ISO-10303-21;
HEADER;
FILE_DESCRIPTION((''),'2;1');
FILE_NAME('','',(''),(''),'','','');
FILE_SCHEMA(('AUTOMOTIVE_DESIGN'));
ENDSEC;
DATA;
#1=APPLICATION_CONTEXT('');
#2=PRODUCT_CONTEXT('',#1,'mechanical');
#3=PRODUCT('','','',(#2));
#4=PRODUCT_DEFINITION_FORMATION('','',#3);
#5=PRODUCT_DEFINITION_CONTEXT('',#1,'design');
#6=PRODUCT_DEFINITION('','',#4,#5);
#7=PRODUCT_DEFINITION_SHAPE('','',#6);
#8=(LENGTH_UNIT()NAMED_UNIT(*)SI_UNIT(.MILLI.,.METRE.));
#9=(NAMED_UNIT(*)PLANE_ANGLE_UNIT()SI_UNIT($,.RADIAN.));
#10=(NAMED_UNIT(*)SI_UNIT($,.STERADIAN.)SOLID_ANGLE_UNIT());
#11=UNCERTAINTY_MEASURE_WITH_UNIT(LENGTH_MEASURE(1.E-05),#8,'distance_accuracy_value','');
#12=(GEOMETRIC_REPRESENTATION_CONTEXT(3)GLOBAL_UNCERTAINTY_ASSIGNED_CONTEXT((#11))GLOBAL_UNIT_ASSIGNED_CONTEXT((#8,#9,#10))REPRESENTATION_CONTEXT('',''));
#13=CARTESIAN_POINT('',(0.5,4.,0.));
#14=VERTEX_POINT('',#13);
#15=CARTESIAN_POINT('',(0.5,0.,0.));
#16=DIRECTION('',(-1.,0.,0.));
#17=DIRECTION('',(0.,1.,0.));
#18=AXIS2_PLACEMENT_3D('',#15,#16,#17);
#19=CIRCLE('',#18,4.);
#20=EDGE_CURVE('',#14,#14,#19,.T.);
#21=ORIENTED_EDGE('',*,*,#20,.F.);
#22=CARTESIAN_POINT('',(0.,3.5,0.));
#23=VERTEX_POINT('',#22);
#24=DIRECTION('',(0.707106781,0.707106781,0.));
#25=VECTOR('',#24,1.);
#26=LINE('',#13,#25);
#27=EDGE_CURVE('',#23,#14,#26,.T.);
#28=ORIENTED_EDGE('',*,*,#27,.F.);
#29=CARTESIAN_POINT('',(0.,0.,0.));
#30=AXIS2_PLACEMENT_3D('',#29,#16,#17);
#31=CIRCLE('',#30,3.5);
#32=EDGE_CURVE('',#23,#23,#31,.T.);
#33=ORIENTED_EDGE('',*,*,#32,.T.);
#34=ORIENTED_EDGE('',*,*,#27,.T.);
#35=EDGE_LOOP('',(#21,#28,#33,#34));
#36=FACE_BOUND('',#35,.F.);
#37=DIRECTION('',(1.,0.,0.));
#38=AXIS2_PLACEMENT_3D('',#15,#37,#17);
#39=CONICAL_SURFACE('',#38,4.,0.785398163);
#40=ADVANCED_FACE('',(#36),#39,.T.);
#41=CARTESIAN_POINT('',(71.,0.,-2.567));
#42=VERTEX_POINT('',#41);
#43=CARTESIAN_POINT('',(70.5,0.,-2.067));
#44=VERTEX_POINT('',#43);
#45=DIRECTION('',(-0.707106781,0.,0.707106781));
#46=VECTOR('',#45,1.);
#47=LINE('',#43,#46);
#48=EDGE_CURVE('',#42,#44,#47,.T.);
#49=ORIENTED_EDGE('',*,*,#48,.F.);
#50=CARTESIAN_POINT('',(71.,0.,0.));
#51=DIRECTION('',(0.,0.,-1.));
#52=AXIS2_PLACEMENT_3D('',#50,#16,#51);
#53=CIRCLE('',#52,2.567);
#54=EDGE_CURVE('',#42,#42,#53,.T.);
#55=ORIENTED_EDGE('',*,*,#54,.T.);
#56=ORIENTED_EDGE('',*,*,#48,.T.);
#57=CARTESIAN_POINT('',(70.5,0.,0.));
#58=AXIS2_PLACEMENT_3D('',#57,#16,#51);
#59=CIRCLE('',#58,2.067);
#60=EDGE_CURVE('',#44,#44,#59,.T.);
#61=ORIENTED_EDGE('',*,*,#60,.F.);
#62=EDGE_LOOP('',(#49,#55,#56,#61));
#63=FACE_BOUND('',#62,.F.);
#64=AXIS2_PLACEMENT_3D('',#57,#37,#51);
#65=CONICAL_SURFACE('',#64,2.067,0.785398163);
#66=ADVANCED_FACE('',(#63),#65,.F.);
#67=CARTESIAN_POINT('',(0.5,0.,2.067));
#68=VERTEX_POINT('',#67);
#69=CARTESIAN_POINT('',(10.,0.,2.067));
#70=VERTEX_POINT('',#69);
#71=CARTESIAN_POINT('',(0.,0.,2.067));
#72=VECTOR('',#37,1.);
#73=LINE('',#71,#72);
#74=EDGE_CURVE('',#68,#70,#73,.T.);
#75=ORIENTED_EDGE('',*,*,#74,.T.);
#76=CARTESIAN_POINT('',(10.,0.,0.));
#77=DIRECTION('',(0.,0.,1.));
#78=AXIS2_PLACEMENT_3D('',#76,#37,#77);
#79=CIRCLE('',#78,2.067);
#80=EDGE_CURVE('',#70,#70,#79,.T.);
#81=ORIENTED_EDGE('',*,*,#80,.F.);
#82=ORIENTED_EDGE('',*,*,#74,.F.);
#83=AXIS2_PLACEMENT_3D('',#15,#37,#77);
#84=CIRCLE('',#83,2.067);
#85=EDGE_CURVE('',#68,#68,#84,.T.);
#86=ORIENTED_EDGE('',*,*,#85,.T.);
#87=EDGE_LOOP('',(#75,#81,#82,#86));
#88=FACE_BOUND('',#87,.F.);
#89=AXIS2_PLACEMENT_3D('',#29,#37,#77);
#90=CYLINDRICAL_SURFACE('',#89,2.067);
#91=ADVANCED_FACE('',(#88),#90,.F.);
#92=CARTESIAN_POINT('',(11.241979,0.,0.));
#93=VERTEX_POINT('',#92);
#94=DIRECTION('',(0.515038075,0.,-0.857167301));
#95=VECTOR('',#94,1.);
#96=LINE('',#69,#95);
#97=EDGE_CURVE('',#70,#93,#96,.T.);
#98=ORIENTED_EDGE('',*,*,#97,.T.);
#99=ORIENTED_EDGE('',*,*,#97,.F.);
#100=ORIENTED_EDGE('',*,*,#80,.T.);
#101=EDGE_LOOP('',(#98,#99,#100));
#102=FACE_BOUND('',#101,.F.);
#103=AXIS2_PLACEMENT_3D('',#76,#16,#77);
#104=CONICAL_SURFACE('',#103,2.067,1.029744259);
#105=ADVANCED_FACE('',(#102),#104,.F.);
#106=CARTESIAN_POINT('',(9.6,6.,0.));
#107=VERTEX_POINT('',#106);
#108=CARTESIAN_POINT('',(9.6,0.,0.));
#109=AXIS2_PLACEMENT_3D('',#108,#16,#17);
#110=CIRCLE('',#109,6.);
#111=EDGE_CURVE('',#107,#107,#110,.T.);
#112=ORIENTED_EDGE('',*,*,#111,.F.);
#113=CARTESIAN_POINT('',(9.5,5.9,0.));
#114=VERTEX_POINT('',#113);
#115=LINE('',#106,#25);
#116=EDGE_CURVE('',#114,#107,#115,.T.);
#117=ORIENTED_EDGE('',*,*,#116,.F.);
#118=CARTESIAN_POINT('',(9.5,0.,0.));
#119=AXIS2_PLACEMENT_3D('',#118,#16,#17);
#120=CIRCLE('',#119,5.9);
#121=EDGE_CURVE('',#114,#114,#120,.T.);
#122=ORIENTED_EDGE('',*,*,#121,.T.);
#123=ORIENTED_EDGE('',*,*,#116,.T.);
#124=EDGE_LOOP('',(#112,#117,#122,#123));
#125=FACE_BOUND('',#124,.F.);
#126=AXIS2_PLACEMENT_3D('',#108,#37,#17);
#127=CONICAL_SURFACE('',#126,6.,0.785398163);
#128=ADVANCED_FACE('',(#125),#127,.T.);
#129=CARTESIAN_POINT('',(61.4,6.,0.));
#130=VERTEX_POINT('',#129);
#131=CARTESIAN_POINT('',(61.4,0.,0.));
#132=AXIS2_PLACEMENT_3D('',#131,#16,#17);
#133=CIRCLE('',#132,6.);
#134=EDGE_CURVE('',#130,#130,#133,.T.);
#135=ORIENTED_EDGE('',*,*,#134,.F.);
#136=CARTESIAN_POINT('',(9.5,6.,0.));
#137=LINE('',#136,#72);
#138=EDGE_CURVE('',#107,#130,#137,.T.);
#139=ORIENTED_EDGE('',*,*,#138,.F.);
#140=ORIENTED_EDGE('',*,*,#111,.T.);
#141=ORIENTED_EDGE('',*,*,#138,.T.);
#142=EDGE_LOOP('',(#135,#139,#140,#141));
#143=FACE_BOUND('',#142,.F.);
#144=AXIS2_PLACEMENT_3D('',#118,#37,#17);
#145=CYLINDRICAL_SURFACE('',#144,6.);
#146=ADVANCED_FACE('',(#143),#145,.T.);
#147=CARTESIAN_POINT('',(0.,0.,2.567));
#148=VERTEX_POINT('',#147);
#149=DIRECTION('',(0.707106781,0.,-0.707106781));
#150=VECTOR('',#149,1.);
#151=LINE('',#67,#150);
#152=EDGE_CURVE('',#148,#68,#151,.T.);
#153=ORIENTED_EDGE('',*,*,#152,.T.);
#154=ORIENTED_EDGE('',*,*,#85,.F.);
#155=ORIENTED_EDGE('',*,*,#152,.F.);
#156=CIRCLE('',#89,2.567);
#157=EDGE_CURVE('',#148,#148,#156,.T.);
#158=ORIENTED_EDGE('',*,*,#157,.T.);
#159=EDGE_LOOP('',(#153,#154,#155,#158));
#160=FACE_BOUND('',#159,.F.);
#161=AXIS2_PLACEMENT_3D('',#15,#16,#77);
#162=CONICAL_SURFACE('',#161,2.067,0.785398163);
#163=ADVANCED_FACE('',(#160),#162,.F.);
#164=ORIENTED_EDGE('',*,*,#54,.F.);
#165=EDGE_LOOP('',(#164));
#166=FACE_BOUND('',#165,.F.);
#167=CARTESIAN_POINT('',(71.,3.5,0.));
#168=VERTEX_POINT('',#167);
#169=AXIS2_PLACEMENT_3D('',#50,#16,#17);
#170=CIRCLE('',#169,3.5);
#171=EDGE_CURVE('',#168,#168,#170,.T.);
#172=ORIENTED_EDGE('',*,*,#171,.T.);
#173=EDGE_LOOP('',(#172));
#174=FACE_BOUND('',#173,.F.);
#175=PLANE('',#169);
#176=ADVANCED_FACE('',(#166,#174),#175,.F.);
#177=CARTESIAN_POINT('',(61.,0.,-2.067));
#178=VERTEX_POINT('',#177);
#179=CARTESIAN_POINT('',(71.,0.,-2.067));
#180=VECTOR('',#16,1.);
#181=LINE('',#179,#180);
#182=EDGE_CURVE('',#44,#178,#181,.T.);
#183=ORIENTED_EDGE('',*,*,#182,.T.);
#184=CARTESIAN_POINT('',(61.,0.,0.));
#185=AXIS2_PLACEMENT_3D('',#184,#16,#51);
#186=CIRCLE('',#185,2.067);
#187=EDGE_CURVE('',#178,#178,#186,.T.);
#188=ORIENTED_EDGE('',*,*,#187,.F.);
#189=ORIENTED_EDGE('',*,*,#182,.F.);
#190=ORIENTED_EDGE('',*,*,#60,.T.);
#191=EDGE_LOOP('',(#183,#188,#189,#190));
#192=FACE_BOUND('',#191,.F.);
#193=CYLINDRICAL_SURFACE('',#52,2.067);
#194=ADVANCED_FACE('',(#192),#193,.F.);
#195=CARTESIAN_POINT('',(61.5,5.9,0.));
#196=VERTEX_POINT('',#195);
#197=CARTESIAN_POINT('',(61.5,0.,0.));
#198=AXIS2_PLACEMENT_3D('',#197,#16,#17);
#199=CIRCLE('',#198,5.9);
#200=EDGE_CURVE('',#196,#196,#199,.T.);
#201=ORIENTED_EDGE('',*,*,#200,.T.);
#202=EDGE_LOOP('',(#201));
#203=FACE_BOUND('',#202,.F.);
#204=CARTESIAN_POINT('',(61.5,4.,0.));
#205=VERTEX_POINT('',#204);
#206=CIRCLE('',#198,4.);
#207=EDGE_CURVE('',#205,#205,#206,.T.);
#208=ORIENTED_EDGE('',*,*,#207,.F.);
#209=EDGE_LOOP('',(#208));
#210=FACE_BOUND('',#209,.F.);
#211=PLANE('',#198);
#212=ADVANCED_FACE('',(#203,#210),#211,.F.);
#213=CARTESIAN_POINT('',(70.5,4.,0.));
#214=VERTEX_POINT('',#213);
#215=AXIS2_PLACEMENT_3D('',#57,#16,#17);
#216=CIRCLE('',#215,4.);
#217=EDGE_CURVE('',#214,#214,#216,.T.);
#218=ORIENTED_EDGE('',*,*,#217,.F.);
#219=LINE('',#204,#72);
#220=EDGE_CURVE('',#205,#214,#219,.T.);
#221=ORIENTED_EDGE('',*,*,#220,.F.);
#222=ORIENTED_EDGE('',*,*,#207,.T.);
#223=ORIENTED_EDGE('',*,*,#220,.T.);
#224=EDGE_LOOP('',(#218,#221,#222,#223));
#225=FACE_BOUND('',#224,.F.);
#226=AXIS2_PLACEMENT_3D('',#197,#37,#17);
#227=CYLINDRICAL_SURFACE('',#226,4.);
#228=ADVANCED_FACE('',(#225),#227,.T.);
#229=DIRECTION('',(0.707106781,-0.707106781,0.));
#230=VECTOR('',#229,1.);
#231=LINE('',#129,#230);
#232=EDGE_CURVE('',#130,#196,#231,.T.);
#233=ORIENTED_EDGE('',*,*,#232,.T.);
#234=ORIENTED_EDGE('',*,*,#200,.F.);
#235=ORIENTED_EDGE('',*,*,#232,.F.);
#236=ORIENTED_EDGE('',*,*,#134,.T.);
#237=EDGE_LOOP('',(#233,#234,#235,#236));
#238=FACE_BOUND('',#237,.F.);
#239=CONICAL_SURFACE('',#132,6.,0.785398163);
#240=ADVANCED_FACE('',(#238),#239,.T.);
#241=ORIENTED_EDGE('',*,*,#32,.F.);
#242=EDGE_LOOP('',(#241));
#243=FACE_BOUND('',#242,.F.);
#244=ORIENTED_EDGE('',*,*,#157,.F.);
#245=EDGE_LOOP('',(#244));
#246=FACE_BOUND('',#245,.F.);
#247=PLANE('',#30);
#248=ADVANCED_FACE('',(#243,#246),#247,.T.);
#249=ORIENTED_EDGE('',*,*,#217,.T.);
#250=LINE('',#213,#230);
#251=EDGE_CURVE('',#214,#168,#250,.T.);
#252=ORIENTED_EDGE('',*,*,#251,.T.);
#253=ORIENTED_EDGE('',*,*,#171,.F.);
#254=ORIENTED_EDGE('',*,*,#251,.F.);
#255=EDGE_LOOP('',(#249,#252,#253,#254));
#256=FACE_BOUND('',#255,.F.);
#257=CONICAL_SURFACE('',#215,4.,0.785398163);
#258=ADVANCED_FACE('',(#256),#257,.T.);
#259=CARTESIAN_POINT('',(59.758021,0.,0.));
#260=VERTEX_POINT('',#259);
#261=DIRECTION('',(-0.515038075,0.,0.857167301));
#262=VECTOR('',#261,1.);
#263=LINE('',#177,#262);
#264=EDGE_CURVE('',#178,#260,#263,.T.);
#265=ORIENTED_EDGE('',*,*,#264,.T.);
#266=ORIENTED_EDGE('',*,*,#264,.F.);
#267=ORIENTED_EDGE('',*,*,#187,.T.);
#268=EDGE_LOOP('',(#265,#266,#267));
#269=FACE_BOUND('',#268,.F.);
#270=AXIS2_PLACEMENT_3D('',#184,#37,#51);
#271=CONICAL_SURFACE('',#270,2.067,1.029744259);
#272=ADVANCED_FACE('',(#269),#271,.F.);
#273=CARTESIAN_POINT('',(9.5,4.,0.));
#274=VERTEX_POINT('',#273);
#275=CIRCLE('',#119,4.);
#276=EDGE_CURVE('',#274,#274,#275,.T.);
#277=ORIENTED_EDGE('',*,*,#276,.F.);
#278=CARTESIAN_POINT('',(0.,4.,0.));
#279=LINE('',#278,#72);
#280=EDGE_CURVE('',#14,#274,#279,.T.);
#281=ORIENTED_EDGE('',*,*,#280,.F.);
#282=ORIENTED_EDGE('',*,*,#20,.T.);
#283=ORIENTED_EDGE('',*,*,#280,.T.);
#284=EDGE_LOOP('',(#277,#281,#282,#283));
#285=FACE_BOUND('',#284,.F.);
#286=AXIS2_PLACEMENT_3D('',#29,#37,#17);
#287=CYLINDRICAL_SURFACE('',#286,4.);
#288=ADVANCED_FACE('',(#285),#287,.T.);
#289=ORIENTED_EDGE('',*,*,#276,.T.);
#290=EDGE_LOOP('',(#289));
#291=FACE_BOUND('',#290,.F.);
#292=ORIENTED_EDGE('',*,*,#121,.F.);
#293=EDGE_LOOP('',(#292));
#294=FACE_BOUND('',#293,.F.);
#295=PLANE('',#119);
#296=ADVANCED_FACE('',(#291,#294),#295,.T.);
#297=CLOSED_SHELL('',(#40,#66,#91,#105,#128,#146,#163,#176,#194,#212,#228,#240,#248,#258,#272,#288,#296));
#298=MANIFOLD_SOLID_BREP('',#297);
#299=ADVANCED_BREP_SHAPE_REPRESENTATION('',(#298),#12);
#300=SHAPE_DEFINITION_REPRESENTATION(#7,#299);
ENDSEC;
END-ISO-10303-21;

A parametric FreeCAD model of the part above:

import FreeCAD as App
import Part
import Sketcher


def edges_at(feature, points):
    """Names of the edges that pass closest to the given points."""
    edges = feature.Shape.Edges
    near = lambda p: min(range(len(edges)), key=lambda i: edges[i].distToShape(Part.Vertex(*p))[0])
    return sorted({f"Edge{near(p) + 1}" for p in points})

doc = App.newDocument("Part")
body = doc.addObject("PartDesign::Body", "Body")

sketch1 = body.newObject("Sketcher::SketchObject", "Sketch")
sketch1.AttachmentSupport = (doc.getObject("XY_Plane"), [""])
sketch1.MapMode = "FlatFace"
sketch1.addGeometry(Part.LineSegment(App.Vector(0, 4, 0), App.Vector(0, 0, 0)), False)
sketch1.addGeometry(Part.LineSegment(App.Vector(0, 0, 0), App.Vector(71, 0, 0)), False)
sketch1.addGeometry(Part.LineSegment(App.Vector(71, 0, 0), App.Vector(71, 4, 0)), False)
sketch1.addGeometry(Part.LineSegment(App.Vector(71, 4, 0), App.Vector(61.5, 4, 0)), False)
sketch1.addGeometry(Part.LineSegment(App.Vector(61.5, 4, 0), App.Vector(61.5, 6, 0)), False)
sketch1.addGeometry(Part.LineSegment(App.Vector(61.5, 6, 0), App.Vector(9.5, 6, 0)), False)
sketch1.addGeometry(Part.LineSegment(App.Vector(9.5, 6, 0), App.Vector(9.5, 4, 0)), False)
sketch1.addGeometry(Part.LineSegment(App.Vector(9.5, 4, 0), App.Vector(0, 4, 0)), False)
sketch1.addConstraint(Sketcher.Constraint("Coincident", 0, 2, 1, 1))
sketch1.addConstraint(Sketcher.Constraint("Coincident", 1, 2, 2, 1))
sketch1.addConstraint(Sketcher.Constraint("Coincident", 2, 2, 3, 1))
sketch1.addConstraint(Sketcher.Constraint("Coincident", 3, 2, 4, 1))
sketch1.addConstraint(Sketcher.Constraint("Coincident", 4, 2, 5, 1))
sketch1.addConstraint(Sketcher.Constraint("Coincident", 5, 2, 6, 1))
sketch1.addConstraint(Sketcher.Constraint("Coincident", 6, 2, 7, 1))
sketch1.addConstraint(Sketcher.Constraint("Coincident", 7, 2, 0, 1))
sketch1.addConstraint(Sketcher.Constraint("Vertical", 0))
sketch1.addConstraint(Sketcher.Constraint("Horizontal", 1))
sketch1.addConstraint(Sketcher.Constraint("Vertical", 2))
sketch1.addConstraint(Sketcher.Constraint("Horizontal", 3))
sketch1.addConstraint(Sketcher.Constraint("Vertical", 4))
sketch1.addConstraint(Sketcher.Constraint("Horizontal", 5))
sketch1.addConstraint(Sketcher.Constraint("Vertical", 6))
sketch1.addConstraint(Sketcher.Constraint("Horizontal", 7))
sketch1.addConstraint(Sketcher.Constraint("Coincident", 0, 2, -1, 1))
sketch1.addConstraint(Sketcher.Constraint("Horizontal", 3, 2, 6, 2))
sketch1.addConstraint(Sketcher.Constraint("Equal", 3, 7))
sketch1.addConstraint(Sketcher.Constraint("DistanceX", 5, 2, 5, 1, 52.0))
sketch1.addConstraint(Sketcher.Constraint("DistanceX", 3, 2, 3, 1, 9.5))
sketch1.addConstraint(Sketcher.Constraint("DistanceY", 0, 2, 0, 1, 4.0))
sketch1.addConstraint(Sketcher.Constraint("DistanceY", 4, 1, 4, 2, 2.0))
revolution = body.newObject("PartDesign::Revolution", "Revolution")
revolution.Profile = sketch1
revolution.ReferenceAxis = (sketch1, ["H_Axis"])
revolution.Angle = 360

sketch2 = body.newObject("Sketcher::SketchObject", "Sketch001")
sketch2.AttachmentSupport = (doc.getObject("YZ_Plane"), [""])
sketch2.MapMode = "FlatFace"
sketch2.AttachmentOffset = App.Placement(App.Vector(0, 0, 71), App.Rotation())
sketch2.addGeometry(Part.Circle(App.Vector(0, 0, 0), App.Vector(0, 0, 1), 2.1), False)
sketch2.addConstraint(Sketcher.Constraint("Coincident", 0, 3, -1, 1))
sketch2.addConstraint(Sketcher.Constraint("Diameter", 0, 4.134))
doc.recompute()
hole = body.newObject("PartDesign::Hole", "Hole")
hole.Profile = sketch2
hole.ThreadType = "None"
hole.Diameter = 4.134
hole.DepthType = "Dimension"
hole.Depth = 10
hole.DrillPoint = "Angled"
hole.DrillPointAngle = 118

sketch3 = body.newObject("Sketcher::SketchObject", "Sketch002")
sketch3.AttachmentSupport = (doc.getObject("YZ_Plane"), [""])
sketch3.MapMode = "FlatFace"
sketch3.addGeometry(Part.Circle(App.Vector(0, 0, 0), App.Vector(0, 0, 1), 2.1), False)
sketch3.addConstraint(Sketcher.Constraint("Coincident", 0, 3, -1, 1))
sketch3.addConstraint(Sketcher.Constraint("Diameter", 0, 4.134))
doc.recompute()
hole2 = body.newObject("PartDesign::Hole", "Hole001")
hole2.Profile = sketch3
hole2.ThreadType = "None"
hole2.Diameter = 4.134
hole2.DepthType = "Dimension"
hole2.Depth = 10
hole2.DrillPoint = "Angled"
hole2.DrillPointAngle = 118
hole2.Reversed = True
doc.recompute()

chamfer = body.newObject("PartDesign::Chamfer", "Chamfer")
chamfer.Base = (hole2, edges_at(hole2, [
    (0, -4, 0),
    (71, -4, 0),
    (71, 0, 2.067),
    (0, 0, -2.067),
]))
chamfer.Size = 0.5
doc.recompute()

chamfer2 = body.newObject("PartDesign::Chamfer", "Chamfer001")
chamfer2.Base = (chamfer, edges_at(chamfer, [(61.5, -6, 0), (9.5, -6, 0)]))
chamfer2.Size = 0.1

doc.recompute()
